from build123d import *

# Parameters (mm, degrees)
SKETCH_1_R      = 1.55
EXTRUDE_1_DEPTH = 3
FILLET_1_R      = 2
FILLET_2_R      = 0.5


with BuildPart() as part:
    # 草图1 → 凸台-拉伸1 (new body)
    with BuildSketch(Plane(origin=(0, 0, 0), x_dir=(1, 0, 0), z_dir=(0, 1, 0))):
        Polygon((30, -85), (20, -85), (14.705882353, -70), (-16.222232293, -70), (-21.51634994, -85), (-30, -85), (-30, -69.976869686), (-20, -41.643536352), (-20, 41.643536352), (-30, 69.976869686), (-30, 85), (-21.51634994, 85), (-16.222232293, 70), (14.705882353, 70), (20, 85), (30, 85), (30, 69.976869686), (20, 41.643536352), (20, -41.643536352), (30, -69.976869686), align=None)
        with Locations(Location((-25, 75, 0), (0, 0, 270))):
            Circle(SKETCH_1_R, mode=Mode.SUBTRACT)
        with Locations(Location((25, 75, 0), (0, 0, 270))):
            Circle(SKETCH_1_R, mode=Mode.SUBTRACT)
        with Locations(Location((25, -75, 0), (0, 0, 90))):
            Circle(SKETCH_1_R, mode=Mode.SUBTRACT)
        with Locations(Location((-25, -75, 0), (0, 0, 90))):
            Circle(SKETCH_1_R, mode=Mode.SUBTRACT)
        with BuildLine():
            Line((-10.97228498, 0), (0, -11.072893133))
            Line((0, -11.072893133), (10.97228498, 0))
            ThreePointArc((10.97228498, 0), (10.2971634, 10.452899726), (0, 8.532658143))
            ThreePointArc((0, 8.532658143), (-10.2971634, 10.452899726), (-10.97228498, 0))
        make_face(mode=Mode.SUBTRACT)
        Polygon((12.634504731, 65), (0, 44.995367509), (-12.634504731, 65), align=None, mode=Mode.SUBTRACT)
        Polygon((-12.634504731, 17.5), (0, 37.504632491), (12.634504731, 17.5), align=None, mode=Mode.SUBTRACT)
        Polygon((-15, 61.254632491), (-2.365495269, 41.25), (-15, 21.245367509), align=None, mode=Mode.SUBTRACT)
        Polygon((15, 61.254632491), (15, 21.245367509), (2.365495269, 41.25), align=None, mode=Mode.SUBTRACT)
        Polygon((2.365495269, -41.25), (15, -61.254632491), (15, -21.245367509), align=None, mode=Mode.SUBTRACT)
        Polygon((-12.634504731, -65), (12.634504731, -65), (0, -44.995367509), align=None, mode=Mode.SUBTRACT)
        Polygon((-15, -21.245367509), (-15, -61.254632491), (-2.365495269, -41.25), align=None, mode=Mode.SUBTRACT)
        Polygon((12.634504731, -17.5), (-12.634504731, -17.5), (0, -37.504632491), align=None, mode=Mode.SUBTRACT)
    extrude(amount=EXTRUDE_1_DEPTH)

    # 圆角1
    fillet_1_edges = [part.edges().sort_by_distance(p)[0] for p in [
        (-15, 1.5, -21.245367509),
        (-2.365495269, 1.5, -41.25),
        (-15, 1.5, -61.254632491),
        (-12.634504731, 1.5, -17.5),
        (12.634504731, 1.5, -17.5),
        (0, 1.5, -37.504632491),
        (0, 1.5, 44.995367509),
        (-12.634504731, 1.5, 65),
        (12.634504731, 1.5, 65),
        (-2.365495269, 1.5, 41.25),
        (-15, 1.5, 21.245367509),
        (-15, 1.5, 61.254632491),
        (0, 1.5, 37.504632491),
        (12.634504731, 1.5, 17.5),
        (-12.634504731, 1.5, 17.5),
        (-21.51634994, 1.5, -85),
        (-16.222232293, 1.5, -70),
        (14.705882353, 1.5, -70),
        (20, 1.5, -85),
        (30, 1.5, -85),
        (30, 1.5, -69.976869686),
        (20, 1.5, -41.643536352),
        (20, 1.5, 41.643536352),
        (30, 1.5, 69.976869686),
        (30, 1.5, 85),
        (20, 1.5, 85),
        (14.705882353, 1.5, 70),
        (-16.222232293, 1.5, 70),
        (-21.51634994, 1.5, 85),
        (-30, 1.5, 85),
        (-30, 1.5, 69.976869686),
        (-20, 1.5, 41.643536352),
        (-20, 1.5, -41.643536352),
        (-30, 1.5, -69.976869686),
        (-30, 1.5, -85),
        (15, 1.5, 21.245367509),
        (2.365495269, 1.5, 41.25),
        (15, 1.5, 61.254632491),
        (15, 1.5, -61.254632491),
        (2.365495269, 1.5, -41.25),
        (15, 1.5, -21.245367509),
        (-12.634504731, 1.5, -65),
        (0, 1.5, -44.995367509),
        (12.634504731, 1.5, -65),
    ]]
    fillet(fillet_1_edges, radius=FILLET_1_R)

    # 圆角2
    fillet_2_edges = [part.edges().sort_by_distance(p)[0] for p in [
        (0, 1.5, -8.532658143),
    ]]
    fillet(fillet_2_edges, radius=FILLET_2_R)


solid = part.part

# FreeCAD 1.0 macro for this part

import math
import FreeCAD as App
import Part
import Sketcher

V = App.Vector
Q = App.Units.Quantity


def edges_at(feature, points):
    """Names of the edges that pass closest to the given points."""
    edges = feature.Shape.Edges
    near = lambda p: min(range(len(edges)), key=lambda i: edges[i].distToShape(Part.Vertex(*p))[0])
    return sorted({f"Edge{near(p) + 1}" for p in points})


def add_polygon(sketch, points):
    """Adds a closed chain of lines whose ends are joined by coincident constraints."""
    first, n = sketch.GeometryCount, len(points)
    for a, b in zip(points, points[1:] + points[:1]):
        sketch.addGeometry(Part.LineSegment(App.Vector(*a, 0), App.Vector(*b, 0)), False)
    for i in range(n):
        sketch.addConstraint(Sketcher.Constraint("Coincident", first + i, 2, first + (i + 1) % n, 1))

doc = App.newDocument("Part")
body = doc.addObject("PartDesign::Body", "Body")

# Sketch on XZ plane
sketch1 = body.newObject("Sketcher::SketchObject", "Sketch")
sketch1.AttachmentSupport = (doc.getObject("XZ_Plane"), [""])
sketch1.MapMode = "FlatFace"
add_polygon(sketch1, [(20, 85), (30, 85), (30, 69.97687), (20, 41.643536), (20, -41.643536), (30, -69.97687), (30, -85), (20, -85), (14.705882, -70), (-16.222232, -70), (-21.51635, -85), (-30, -85), (-30, -69.97687), (-20, -41.643536), (-20, 41.643536), (-30, 69.97687), (-30, 85), (-21.51635, 85), (-16.222232, 70), (14.705882, 70)])  # lines 0-19
sketch1.addGeometry(Part.Circle(V(25, 75, 0), V(0, 0, 1), 1.55), False)  # 20
add_polygon(sketch1, [(2.365495, 41.25), (15, 21.245368), (15, 61.254632)])  # lines 21-23
add_polygon(sketch1, [(12.634505, 17.5), (0, 37.504632), (-12.634505, 17.5)])  # lines 24-26
add_polygon(sketch1, [(-12.634505, 65), (0, 44.995368), (12.634505, 65)])  # lines 27-29
add_polygon(sketch1, [(-15, 21.245368), (-2.365495, 41.25), (-15, 61.254632)])  # lines 30-32
sketch1.addGeometry(Part.Circle(V(-25, 75, 0), V(0, 0, 1), 1.55), False)  # 33
add_polygon(sketch1, [(-12.634505, -17.5), (0, -37.504632), (12.634505, -17.5)])  # lines 34-36
sketch1.addGeometry(Part.Circle(V(25, -75, 0), V(0, 0, 1), 1.55), False)  # 37
add_polygon(sketch1, [(15, -61.254632), (15, -21.245368), (2.365495, -41.25)])  # lines 38-40
sketch1.addGeometry(Part.ArcOfCircle(Part.Circle(V(-6, -4.927107, 0), V(0, 0, 1), 7), math.radians(135.26148), math.radians(328.997281)), False)  # 41
sketch1.addGeometry(Part.ArcOfCircle(Part.Circle(V(6, -4.927107, 0), V(0, 0, 1), 7), math.radians(-148.997281), math.radians(44.73852)), False)  # 42
sketch1.addGeometry(Part.LineSegment(V(10.972285, 0, 0), V(0, 11.072893, 0)), False)  # 43
sketch1.addGeometry(Part.LineSegment(V(0, 11.072893, 0), V(-10.972285, 0, 0)), False)  # 44
add_polygon(sketch1, [(12.634505, -65), (0, -44.995368), (-12.634505, -65)])  # lines 45-47
add_polygon(sketch1, [(-15, -61.254632), (-2.365495, -41.25), (-15, -21.245368)])  # lines 48-50
sketch1.addGeometry(Part.Circle(V(-25, -75, 0), V(0, 0, 1), 1.55), False)  # 51
sketch1.addConstraint([
    Sketcher.Constraint("Coincident", 41, 2, 42, 1),
    Sketcher.Constraint("Tangent", 42, 2, 43, 1),
    Sketcher.Constraint("Coincident", 43, 2, 44, 1),
    Sketcher.Constraint("Tangent", 44, 2, 41, 1),
    Sketcher.Constraint("Horizontal", 0),
    Sketcher.Constraint("Vertical", 1),
    Sketcher.Constraint("Vertical", 3),
    Sketcher.Constraint("Vertical", 5),
    Sketcher.Constraint("Horizontal", 6),
    Sketcher.Constraint("Horizontal", 8),
    Sketcher.Constraint("Horizontal", 10),
    Sketcher.Constraint("Vertical", 11),
    Sketcher.Constraint("Vertical", 13),
    Sketcher.Constraint("Vertical", 15),
    Sketcher.Constraint("Horizontal", 16),
    Sketcher.Constraint("Horizontal", 18),
    Sketcher.Constraint("Vertical", 22),
    Sketcher.Constraint("Horizontal", 26),
    Sketcher.Constraint("Horizontal", 29),
    Sketcher.Constraint("Vertical", 32),
    Sketcher.Constraint("Horizontal", 36),
    Sketcher.Constraint("Vertical", 38),
    Sketcher.Constraint("Horizontal", 47),
    Sketcher.Constraint("Vertical", 50),
    Sketcher.Constraint("Equal", 20, 33),
    Sketcher.Constraint("Equal", 33, 37),
    Sketcher.Constraint("Equal", 41, 42),
    Sketcher.Constraint("Equal", 37, 51),
    Sketcher.Constraint("Symmetric", 33, 3, 37, 3, -1, 1),
    Sketcher.Constraint("Symmetric", 20, 3, 51, 3, -1, 1),
    Sketcher.Constraint("Symmetric", 0, 2, 10, 2, -1, 1),
    Sketcher.Constraint("Symmetric", 2, 2, 12, 2, -1, 1),
    Sketcher.Constraint("Symmetric", 4, 2, 14, 2, -1, 1),
    Sketcher.Constraint("Symmetric", 24, 2, 34, 2, -1, 1),
    Sketcher.Constraint("Symmetric", 25, 2, 35, 2, -1, 1),
    Sketcher.Constraint("Symmetric", 32, 2, 38, 2, -1, 1),
    Sketcher.Constraint("Symmetric", 30, 2, 39, 2, -1, 1),
    Sketcher.Constraint("Symmetric", 42, 2, 44, 2, -1, 1),
    Sketcher.Constraint("Symmetric", 27, 2, 45, 2, -1, 1),
    Sketcher.Constraint("Symmetric", 28, 2, 46, 2, -1, 1),
    Sketcher.Constraint("Symmetric", 23, 2, 48, 2, -1, 1),
    Sketcher.Constraint("Symmetric", 21, 2, 49, 2, -1, 1),
    Sketcher.Constraint("Symmetric", 20, 3, 33, 3, -2),
    Sketcher.Constraint("Symmetric", 41, 3, 42, 3, -2),
    Sketcher.Constraint("Symmetric", 5, 2, 10, 2, -2),
    Sketcher.Constraint("Symmetric", 23, 2, 30, 2, -2),
    Sketcher.Constraint("Symmetric", 22, 2, 31, 2, -2),
    Sketcher.Constraint("Symmetric", 9, 2, 16, 2, -1),
    Sketcher.Constraint("Symmetric", 8, 2, 17, 2, -1),
    Sketcher.Constraint("PointOnObject", 24, 2, -2),
    Sketcher.Constraint("PointOnObject", 27, 2, -2),
    Sketcher.Constraint("Parallel", 4, 7),
    Sketcher.Constraint("Parallel", 2, 9),
    Sketcher.Constraint("Parallel", 9, 12),
    Sketcher.Constraint("Parallel", 7, 14),
    Sketcher.Constraint("Parallel", 14, 17),
    Sketcher.Constraint("Parallel", 12, 19),
    Sketcher.Constraint("Parallel", 21, 24),
    Sketcher.Constraint("Parallel", 23, 25),
    Sketcher.Constraint("Parallel", 24, 27),
    Sketcher.Constraint("Parallel", 25, 28),
    Sketcher.Constraint("Parallel", 28, 30),
    Sketcher.Constraint("Parallel", 27, 31),
    Sketcher.Constraint("Parallel", 31, 34),
    Sketcher.Constraint("Parallel", 34, 40),
    Sketcher.Constraint("Parallel", 40, 45),
    Sketcher.Constraint("Parallel", 46, 48),
    Sketcher.Constraint("Horizontal", 4, 2, 11, 2),
    Sketcher.Constraint("Vertical", 3, 2, 6, 2),
    Sketcher.Constraint("Vertical", 7, 2, 18, 2),
    Sketcher.Constraint("Vertical", 26, 2, 28, 2),
    Sketcher.Constraint("Equal", 23, 24),
    Sketcher.Constraint("Radius", 41, Q("7 mm")),
    Sketcher.Constraint("Diameter", 20, Q("3.1 mm")),
    Sketcher.Constraint("DistanceX", 0, 1, 0, 2, Q("10 mm")),
    Sketcher.Constraint("DistanceX", -1, 1, 20, 3, Q("25 mm")),
    Sketcher.Constraint("DistanceY", -1, 1, 20, 3, Q("75 mm")),
    Sketcher.Constraint("DistanceX", 41, 3, -1, 1, Q("6 mm")),
    Sketcher.Constraint("DistanceX", -1, 1, 0, 2, Q("30 mm")),
    Sketcher.Constraint("DistanceY", -1, 1, 0, 2, Q("85 mm")),
    Sketcher.Constraint("DistanceY", 7, 2, -1, 1, Q("70 mm")),
    Sketcher.Constraint("DistanceX", -1, 1, 21, 2, Q("15 mm")),
    Sketcher.Constraint("DistanceY", -1, 1, 28, 2, Q("65 mm")),
    Sketcher.Constraint("DistanceY", 35, 2, 26, 2, Q("35 mm")),
    Sketcher.Constraint("DistanceY", 41, 3, 43, 2, Q("16 mm")),
    Sketcher.Constraint("DistanceY", -1, 1, 23, 2, Q("41.25 mm")),
    Sketcher.Constraint("DistanceX", 10, 2, 10, 1, Q("8.48365 mm")),
    Sketcher.Constraint("DistanceX", 26, 1, 26, 2, Q("25.269009 mm")),
    Sketcher.Constraint("DistanceY", 1, 2, 1, 1, Q("15.02313 mm")),
    Sketcher.Constraint("Distance", 2, Q("30.046261 mm")),
    Sketcher.Constraint("Distance", 21, Q("23.660432 mm")),
])
pad1 = body.newObject("PartDesign::Pad", "Pad")
pad1.Profile = sketch1
pad1.Length = 3
pad1.Reversed = True
doc.recompute()

fillet = body.newObject("PartDesign::Fillet", "Fillet")
fillet.Base = (pad1, edges_at(pad1, [
    (-15, 1.5, -21.245),
    (-2.365, 1.5, -41.25),
    (-15, 1.5, -61.255),
    (-12.635, 1.5, -17.5),
    (12.635, 1.5, -17.5),
    (0, 1.5, -37.505),
    (0, 1.5, 44.995),
    (-12.635, 1.5, 65),
    (12.635, 1.5, 65),
    (-2.365, 1.5, 41.25),
    (-15, 1.5, 21.245),
    (-15, 1.5, 61.255),
    (0, 1.5, 37.505),
    (12.635, 1.5, 17.5),
    (-12.635, 1.5, 17.5),
    (-21.516, 1.5, -85),
    (-16.222, 1.5, -70),
    (14.706, 1.5, -70),
    (20, 1.5, -85),
    (30, 1.5, -85),
    (30, 1.5, -69.977),
    (20, 1.5, -41.644),
    (20, 1.5, 41.644),
    (30, 1.5, 69.977),
    (30, 1.5, 85),
    (20, 1.5, 85),
    (14.706, 1.5, 70),
    (-16.222, 1.5, 70),
    (-21.516, 1.5, 85),
    (-30, 1.5, 85),
    (-30, 1.5, 69.977),
    (-20, 1.5, 41.644),
    (-20, 1.5, -41.644),
    (-30, 1.5, -69.977),
    (-30, 1.5, -85),
    (15, 1.5, 21.245),
    (2.365, 1.5, 41.25),
    (15, 1.5, 61.255),
    (15, 1.5, -61.255),
    (2.365, 1.5, -41.25),
    (15, 1.5, -21.245),
    (-12.635, 1.5, -65),
    (0, 1.5, -44.995),
    (12.635, 1.5, -65),
]))
fillet.Radius = 2
doc.recompute()

fillet2 = body.newObject("PartDesign::Fillet", "Fillet001")
fillet2.Base = (fillet, edges_at(fillet, [(0, 1.5, -8.533)]))
fillet2.Radius = 0.5

doc.recompute()
